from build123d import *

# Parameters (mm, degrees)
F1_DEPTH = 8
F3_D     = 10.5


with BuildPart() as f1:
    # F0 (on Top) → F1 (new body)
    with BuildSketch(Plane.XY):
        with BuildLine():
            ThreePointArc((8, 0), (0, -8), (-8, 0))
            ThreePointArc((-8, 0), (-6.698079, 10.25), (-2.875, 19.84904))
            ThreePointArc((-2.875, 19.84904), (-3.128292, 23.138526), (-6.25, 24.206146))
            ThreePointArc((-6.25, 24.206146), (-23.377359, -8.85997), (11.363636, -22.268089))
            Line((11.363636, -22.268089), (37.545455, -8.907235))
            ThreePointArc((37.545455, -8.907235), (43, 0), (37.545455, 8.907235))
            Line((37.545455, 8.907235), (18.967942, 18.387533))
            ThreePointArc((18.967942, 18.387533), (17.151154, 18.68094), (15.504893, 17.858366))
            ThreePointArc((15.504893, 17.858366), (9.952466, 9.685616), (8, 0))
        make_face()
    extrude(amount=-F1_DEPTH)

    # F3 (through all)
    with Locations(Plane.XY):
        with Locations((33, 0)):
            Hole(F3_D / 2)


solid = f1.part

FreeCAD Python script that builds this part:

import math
import FreeCAD as App
import Part
import Sketcher
from FreeCAD import Vector

doc = App.newDocument("Part")
body = doc.addObject("PartDesign::Body", "Body")

# Sketch on XY plane
sketch1 = body.newObject("Sketcher::SketchObject", "Sketch")
sketch1.AttachmentSupport = (doc.getObject("XY_Plane"), [""])
sketch1.MapMode = "FlatFace"
sketch1.addGeometry([
    Part.ArcOfCircle(Part.Circle(Vector(0, 0, 0), Vector(0, 0, 1), 8), math.radians(180), math.radians(360)),  # 0
    Part.ArcOfCircle(Part.Circle(Vector(33, 0, 0), Vector(0, 0, 1), 41), math.radians(151), math.radians(180)),  # 1
    Part.ArcOfCircle(Part.Circle(Vector(-5.5, 21.3, 0), Vector(0, 0, 1), 3), math.radians(-29), math.radians(104)),  # 2
    Part.ArcOfCircle(Part.Circle(Vector(0, 0, 0), Vector(0, 0, 1), 25), math.radians(104), math.radians(297)),  # 3
    Part.LineSegment(Vector(11.4, -22.3, 0), Vector(37.5, -8.9, 0)),  # 4
    Part.ArcOfCircle(Part.Circle(Vector(33, 0, 0), Vector(0, 0, 1), 10), math.radians(-63), math.radians(63)),  # 5
    Part.LineSegment(Vector(37.5, 8.9, 0), Vector(19, 18.4, 0)),  # 6
    Part.ArcOfCircle(Part.Circle(Vector(17.6, 15.7, 0), Vector(0, 0, 1), 3), math.radians(63), math.radians(134)),  # 7
    Part.ArcOfCircle(Part.Circle(Vector(33, 0, 0), Vector(0, 0, 1), 25), math.radians(134), math.radians(180)),  # 8
], False)
sketch1.addConstraint([
    Sketcher.Constraint("Tangent", 0, 1, 1, 2),
    Sketcher.Constraint("Tangent", 1, 1, 2, 1),
    Sketcher.Constraint("Tangent", 2, 2, 3, 1),
    Sketcher.Constraint("Tangent", 3, 2, 4, 1),
    Sketcher.Constraint("Tangent", 4, 2, 5, 1),
    Sketcher.Constraint("Tangent", 5, 2, 6, 1),
    Sketcher.Constraint("Tangent", 6, 2, 7, 1),
    Sketcher.Constraint("Tangent", 7, 2, 8, 1),
    Sketcher.Constraint("Tangent", 8, 2, 0, 2),
    Sketcher.Constraint("Coincident", 0, 3, -1, 1),
    Sketcher.Constraint("Coincident", 3, 3, -1, 1),
    Sketcher.Constraint("Coincident", 8, 3, 1, 3),
    Sketcher.Constraint("Equal", 2, 7),
    Sketcher.Constraint("Symmetric", 4, 2, 5, 2, -1),
    Sketcher.Constraint("PointOnObject", 0, 1, -1),
    Sketcher.Constraint("Radius", 0, 8.0),
    Sketcher.Constraint("Radius", 2, 3.0),
    Sketcher.Constraint("Radius", 3, 25.0),
    Sketcher.Constraint("Radius", 5, 10.0),
    Sketcher.Constraint("DistanceX", -1, 1, 5, 3, 33.0),
    Sketcher.Constraint("DistanceX", 2, 3, -1, 1, 5.5),
])
pad1 = body.newObject("PartDesign::Pad", "Pad")
pad1.Profile = sketch1
pad1.Length = 8
pad1.Reversed = True

# Sketch on XY plane
sketch2 = body.newObject("Sketcher::SketchObject", "Sketch001")
sketch2.AttachmentSupport = (doc.getObject("XY_Plane"), [""])
sketch2.MapMode = "FlatFace"
sketch2.addGeometry(Part.Circle(Vector(33, 0, 0), Vector(0, 0, 1), 5), False)
sketch2.addConstraint([
    Sketcher.Constraint("PointOnObject", 0, 3, -1),
    Sketcher.Constraint("Diameter", 0, 10.5),
    Sketcher.Constraint("DistanceX", -1, 1, 0, 3, 33.0),
])
doc.recompute()
hole = body.newObject("PartDesign::Hole", "Hole")
hole.Profile = sketch2
hole.ThreadType = "None"
hole.Diameter = 10.5
hole.DepthType = "ThroughAll"

doc.recompute()
